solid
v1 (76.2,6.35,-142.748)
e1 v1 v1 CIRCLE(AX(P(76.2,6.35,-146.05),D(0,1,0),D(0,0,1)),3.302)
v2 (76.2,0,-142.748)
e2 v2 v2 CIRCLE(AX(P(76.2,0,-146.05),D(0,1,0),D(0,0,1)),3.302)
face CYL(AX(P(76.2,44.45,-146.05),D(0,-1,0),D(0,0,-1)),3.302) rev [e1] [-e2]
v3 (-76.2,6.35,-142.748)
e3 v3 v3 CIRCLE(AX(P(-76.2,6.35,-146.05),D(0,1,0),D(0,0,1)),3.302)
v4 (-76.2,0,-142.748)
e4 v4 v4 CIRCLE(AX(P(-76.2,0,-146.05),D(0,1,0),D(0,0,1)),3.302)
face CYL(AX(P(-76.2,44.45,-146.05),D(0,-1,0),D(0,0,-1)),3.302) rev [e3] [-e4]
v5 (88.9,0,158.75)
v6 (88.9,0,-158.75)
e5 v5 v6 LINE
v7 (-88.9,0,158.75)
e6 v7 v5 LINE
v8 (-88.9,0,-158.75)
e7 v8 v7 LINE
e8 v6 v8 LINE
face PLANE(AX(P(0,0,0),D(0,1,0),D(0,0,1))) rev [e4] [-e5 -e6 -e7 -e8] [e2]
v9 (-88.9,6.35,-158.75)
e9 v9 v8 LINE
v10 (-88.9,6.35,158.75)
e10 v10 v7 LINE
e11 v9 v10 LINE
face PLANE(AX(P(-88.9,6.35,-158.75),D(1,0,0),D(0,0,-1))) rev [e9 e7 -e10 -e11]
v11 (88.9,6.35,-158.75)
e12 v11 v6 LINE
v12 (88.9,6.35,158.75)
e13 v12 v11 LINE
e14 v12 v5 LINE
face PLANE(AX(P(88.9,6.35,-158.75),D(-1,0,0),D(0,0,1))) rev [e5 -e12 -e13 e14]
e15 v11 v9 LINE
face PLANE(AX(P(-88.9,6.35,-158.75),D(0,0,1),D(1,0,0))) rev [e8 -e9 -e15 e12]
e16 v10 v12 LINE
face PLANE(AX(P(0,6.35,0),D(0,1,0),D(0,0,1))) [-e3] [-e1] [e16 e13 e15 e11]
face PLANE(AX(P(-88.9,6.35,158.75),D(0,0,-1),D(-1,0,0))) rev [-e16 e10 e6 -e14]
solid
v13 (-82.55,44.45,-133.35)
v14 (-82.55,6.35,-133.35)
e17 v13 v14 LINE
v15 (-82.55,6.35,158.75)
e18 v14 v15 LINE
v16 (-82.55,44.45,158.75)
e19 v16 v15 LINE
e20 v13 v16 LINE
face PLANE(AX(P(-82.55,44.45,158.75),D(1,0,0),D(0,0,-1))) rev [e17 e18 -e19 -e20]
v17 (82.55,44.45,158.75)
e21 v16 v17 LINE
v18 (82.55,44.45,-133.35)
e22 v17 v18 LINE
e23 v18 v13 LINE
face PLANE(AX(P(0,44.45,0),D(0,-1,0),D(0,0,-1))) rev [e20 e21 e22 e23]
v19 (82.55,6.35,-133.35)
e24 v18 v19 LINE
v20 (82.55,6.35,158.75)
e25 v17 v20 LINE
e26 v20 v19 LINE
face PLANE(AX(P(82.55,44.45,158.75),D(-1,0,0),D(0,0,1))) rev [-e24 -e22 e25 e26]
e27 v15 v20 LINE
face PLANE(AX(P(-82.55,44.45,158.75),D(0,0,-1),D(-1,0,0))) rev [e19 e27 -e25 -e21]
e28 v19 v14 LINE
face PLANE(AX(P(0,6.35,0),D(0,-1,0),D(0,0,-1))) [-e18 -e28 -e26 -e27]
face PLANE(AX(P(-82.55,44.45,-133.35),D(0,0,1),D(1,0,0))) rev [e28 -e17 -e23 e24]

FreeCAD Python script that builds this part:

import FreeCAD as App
import Part
import Sketcher
Q = App.Units.Quantity

doc = App.newDocument("Part")
body = doc.addObject("PartDesign::Body", "Body")

sketch1 = body.newObject("Sketcher::SketchObject", "Sketch")
sketch1.AttachmentSupport = (doc.getObject("XZ_Plane"), [""])
sketch1.MapMode = "FlatFace"
sketch1.addGeometry([
    Part.LineSegment(App.Vector(-89, -159, 0), App.Vector(-89, 159, 0)),
    Part.LineSegment(App.Vector(-89, 159, 0), App.Vector(89, 159, 0)),
    Part.LineSegment(App.Vector(89, 159, 0), App.Vector(89, -159, 0)),
    Part.LineSegment(App.Vector(89, -159, 0), App.Vector(-89, -159, 0)),
], False)
sketch1.addConstraint([
    Sketcher.Constraint("Coincident", 0, 2, 1, 1),
    Sketcher.Constraint("Coincident", 1, 2, 2, 1),
    Sketcher.Constraint("Coincident", 2, 2, 3, 1),
    Sketcher.Constraint("Coincident", 3, 2, 0, 1),
    Sketcher.Constraint("Vertical", 0),
    Sketcher.Constraint("Horizontal", 1),
    Sketcher.Constraint("Vertical", 2),
    Sketcher.Constraint("Horizontal", 3),
    Sketcher.Constraint("Symmetric", 0, 2, 2, 2, -1, 1),
    Sketcher.Constraint("DistanceX", 1, 1, 1, 2, Q("7 in")),
    Sketcher.Constraint("DistanceY", 0, 1, 0, 2, Q("12.5 in")),
])
pad1 = body.newObject("PartDesign::Pad", "Pad")
pad1.Profile = sketch1
pad1.Length = Q("0.25 in")
pad1.Reversed = True

sketch2 = body.newObject("Sketcher::SketchObject", "Sketch001")
sketch2.AttachmentSupport = (doc.getObject("XZ_Plane"), [""])
sketch2.MapMode = "FlatFace"
sketch2.addGeometry([
    Part.Circle(App.Vector(76.2, -146.1, 0), App.Vector(0, 0, 1), 3.3),
    Part.Circle(App.Vector(-76.2, -146.1, 0), App.Vector(0, 0, 1), 3.3),
], False)
sketch2.addConstraint([
    Sketcher.Constraint("Equal", 0, 1),
    Sketcher.Constraint("Symmetric", 0, 3, 1, 3, -2),
    Sketcher.Constraint("Diameter", 0, Q("0.26 in")),
    Sketcher.Constraint("DistanceX", -1, 1, 0, 3, Q("3 in")),
    Sketcher.Constraint("DistanceY", 0, 3, -1, 1, Q("5.75 in")),
])
pocket1 = body.newObject("PartDesign::Pocket", "Pocket")
pocket1.Profile = sketch2
pocket1.Type = "ThroughAll"
pocket1.Midplane = True
body2 = doc.addObject("PartDesign::Body", "Body001")

sketch3 = body2.newObject("Sketcher::SketchObject", "Sketch002")
sketch3.AttachmentSupport = (doc.getObject("XZ_Plane001"), [""])
sketch3.MapMode = "FlatFace"
sketch3.AttachmentOffset = App.Placement(App.Vector(0, 0, -0.25 * 25.4), App.Rotation())
sketch3.addGeometry([
    Part.LineSegment(App.Vector(-83, -133, 0), App.Vector(-83, 159, 0)),
    Part.LineSegment(App.Vector(-83, 159, 0), App.Vector(83, 159, 0)),
    Part.LineSegment(App.Vector(83, 159, 0), App.Vector(83, -133, 0)),
    Part.LineSegment(App.Vector(83, -133, 0), App.Vector(-83, -133, 0)),
], False)
sketch3.addConstraint([
    Sketcher.Constraint("Coincident", 0, 2, 1, 1),
    Sketcher.Constraint("Coincident", 1, 2, 2, 1),
    Sketcher.Constraint("Coincident", 2, 2, 3, 1),
    Sketcher.Constraint("Coincident", 3, 2, 0, 1),
    Sketcher.Constraint("Vertical", 0),
    Sketcher.Constraint("Horizontal", 1),
    Sketcher.Constraint("Vertical", 2),
    Sketcher.Constraint("Horizontal", 3),
    Sketcher.Constraint("DistanceX", 1, 1, 1, 2, Q("6.5 in")),
    Sketcher.Constraint("DistanceY", 0, 1, 0, 2, Q("11.5 in")),
    Sketcher.Constraint("DistanceX", 0, 2, -1, 1, Q("3.25 in")),
    Sketcher.Constraint("DistanceY", -1, 1, 0, 2, Q("6.25 in")),
])
pad2 = body2.newObject("PartDesign::Pad", "Pad001")
pad2.Profile = sketch3
pad2.Length = Q("1.5 in")
pad2.Reversed = True

doc.recompute()
